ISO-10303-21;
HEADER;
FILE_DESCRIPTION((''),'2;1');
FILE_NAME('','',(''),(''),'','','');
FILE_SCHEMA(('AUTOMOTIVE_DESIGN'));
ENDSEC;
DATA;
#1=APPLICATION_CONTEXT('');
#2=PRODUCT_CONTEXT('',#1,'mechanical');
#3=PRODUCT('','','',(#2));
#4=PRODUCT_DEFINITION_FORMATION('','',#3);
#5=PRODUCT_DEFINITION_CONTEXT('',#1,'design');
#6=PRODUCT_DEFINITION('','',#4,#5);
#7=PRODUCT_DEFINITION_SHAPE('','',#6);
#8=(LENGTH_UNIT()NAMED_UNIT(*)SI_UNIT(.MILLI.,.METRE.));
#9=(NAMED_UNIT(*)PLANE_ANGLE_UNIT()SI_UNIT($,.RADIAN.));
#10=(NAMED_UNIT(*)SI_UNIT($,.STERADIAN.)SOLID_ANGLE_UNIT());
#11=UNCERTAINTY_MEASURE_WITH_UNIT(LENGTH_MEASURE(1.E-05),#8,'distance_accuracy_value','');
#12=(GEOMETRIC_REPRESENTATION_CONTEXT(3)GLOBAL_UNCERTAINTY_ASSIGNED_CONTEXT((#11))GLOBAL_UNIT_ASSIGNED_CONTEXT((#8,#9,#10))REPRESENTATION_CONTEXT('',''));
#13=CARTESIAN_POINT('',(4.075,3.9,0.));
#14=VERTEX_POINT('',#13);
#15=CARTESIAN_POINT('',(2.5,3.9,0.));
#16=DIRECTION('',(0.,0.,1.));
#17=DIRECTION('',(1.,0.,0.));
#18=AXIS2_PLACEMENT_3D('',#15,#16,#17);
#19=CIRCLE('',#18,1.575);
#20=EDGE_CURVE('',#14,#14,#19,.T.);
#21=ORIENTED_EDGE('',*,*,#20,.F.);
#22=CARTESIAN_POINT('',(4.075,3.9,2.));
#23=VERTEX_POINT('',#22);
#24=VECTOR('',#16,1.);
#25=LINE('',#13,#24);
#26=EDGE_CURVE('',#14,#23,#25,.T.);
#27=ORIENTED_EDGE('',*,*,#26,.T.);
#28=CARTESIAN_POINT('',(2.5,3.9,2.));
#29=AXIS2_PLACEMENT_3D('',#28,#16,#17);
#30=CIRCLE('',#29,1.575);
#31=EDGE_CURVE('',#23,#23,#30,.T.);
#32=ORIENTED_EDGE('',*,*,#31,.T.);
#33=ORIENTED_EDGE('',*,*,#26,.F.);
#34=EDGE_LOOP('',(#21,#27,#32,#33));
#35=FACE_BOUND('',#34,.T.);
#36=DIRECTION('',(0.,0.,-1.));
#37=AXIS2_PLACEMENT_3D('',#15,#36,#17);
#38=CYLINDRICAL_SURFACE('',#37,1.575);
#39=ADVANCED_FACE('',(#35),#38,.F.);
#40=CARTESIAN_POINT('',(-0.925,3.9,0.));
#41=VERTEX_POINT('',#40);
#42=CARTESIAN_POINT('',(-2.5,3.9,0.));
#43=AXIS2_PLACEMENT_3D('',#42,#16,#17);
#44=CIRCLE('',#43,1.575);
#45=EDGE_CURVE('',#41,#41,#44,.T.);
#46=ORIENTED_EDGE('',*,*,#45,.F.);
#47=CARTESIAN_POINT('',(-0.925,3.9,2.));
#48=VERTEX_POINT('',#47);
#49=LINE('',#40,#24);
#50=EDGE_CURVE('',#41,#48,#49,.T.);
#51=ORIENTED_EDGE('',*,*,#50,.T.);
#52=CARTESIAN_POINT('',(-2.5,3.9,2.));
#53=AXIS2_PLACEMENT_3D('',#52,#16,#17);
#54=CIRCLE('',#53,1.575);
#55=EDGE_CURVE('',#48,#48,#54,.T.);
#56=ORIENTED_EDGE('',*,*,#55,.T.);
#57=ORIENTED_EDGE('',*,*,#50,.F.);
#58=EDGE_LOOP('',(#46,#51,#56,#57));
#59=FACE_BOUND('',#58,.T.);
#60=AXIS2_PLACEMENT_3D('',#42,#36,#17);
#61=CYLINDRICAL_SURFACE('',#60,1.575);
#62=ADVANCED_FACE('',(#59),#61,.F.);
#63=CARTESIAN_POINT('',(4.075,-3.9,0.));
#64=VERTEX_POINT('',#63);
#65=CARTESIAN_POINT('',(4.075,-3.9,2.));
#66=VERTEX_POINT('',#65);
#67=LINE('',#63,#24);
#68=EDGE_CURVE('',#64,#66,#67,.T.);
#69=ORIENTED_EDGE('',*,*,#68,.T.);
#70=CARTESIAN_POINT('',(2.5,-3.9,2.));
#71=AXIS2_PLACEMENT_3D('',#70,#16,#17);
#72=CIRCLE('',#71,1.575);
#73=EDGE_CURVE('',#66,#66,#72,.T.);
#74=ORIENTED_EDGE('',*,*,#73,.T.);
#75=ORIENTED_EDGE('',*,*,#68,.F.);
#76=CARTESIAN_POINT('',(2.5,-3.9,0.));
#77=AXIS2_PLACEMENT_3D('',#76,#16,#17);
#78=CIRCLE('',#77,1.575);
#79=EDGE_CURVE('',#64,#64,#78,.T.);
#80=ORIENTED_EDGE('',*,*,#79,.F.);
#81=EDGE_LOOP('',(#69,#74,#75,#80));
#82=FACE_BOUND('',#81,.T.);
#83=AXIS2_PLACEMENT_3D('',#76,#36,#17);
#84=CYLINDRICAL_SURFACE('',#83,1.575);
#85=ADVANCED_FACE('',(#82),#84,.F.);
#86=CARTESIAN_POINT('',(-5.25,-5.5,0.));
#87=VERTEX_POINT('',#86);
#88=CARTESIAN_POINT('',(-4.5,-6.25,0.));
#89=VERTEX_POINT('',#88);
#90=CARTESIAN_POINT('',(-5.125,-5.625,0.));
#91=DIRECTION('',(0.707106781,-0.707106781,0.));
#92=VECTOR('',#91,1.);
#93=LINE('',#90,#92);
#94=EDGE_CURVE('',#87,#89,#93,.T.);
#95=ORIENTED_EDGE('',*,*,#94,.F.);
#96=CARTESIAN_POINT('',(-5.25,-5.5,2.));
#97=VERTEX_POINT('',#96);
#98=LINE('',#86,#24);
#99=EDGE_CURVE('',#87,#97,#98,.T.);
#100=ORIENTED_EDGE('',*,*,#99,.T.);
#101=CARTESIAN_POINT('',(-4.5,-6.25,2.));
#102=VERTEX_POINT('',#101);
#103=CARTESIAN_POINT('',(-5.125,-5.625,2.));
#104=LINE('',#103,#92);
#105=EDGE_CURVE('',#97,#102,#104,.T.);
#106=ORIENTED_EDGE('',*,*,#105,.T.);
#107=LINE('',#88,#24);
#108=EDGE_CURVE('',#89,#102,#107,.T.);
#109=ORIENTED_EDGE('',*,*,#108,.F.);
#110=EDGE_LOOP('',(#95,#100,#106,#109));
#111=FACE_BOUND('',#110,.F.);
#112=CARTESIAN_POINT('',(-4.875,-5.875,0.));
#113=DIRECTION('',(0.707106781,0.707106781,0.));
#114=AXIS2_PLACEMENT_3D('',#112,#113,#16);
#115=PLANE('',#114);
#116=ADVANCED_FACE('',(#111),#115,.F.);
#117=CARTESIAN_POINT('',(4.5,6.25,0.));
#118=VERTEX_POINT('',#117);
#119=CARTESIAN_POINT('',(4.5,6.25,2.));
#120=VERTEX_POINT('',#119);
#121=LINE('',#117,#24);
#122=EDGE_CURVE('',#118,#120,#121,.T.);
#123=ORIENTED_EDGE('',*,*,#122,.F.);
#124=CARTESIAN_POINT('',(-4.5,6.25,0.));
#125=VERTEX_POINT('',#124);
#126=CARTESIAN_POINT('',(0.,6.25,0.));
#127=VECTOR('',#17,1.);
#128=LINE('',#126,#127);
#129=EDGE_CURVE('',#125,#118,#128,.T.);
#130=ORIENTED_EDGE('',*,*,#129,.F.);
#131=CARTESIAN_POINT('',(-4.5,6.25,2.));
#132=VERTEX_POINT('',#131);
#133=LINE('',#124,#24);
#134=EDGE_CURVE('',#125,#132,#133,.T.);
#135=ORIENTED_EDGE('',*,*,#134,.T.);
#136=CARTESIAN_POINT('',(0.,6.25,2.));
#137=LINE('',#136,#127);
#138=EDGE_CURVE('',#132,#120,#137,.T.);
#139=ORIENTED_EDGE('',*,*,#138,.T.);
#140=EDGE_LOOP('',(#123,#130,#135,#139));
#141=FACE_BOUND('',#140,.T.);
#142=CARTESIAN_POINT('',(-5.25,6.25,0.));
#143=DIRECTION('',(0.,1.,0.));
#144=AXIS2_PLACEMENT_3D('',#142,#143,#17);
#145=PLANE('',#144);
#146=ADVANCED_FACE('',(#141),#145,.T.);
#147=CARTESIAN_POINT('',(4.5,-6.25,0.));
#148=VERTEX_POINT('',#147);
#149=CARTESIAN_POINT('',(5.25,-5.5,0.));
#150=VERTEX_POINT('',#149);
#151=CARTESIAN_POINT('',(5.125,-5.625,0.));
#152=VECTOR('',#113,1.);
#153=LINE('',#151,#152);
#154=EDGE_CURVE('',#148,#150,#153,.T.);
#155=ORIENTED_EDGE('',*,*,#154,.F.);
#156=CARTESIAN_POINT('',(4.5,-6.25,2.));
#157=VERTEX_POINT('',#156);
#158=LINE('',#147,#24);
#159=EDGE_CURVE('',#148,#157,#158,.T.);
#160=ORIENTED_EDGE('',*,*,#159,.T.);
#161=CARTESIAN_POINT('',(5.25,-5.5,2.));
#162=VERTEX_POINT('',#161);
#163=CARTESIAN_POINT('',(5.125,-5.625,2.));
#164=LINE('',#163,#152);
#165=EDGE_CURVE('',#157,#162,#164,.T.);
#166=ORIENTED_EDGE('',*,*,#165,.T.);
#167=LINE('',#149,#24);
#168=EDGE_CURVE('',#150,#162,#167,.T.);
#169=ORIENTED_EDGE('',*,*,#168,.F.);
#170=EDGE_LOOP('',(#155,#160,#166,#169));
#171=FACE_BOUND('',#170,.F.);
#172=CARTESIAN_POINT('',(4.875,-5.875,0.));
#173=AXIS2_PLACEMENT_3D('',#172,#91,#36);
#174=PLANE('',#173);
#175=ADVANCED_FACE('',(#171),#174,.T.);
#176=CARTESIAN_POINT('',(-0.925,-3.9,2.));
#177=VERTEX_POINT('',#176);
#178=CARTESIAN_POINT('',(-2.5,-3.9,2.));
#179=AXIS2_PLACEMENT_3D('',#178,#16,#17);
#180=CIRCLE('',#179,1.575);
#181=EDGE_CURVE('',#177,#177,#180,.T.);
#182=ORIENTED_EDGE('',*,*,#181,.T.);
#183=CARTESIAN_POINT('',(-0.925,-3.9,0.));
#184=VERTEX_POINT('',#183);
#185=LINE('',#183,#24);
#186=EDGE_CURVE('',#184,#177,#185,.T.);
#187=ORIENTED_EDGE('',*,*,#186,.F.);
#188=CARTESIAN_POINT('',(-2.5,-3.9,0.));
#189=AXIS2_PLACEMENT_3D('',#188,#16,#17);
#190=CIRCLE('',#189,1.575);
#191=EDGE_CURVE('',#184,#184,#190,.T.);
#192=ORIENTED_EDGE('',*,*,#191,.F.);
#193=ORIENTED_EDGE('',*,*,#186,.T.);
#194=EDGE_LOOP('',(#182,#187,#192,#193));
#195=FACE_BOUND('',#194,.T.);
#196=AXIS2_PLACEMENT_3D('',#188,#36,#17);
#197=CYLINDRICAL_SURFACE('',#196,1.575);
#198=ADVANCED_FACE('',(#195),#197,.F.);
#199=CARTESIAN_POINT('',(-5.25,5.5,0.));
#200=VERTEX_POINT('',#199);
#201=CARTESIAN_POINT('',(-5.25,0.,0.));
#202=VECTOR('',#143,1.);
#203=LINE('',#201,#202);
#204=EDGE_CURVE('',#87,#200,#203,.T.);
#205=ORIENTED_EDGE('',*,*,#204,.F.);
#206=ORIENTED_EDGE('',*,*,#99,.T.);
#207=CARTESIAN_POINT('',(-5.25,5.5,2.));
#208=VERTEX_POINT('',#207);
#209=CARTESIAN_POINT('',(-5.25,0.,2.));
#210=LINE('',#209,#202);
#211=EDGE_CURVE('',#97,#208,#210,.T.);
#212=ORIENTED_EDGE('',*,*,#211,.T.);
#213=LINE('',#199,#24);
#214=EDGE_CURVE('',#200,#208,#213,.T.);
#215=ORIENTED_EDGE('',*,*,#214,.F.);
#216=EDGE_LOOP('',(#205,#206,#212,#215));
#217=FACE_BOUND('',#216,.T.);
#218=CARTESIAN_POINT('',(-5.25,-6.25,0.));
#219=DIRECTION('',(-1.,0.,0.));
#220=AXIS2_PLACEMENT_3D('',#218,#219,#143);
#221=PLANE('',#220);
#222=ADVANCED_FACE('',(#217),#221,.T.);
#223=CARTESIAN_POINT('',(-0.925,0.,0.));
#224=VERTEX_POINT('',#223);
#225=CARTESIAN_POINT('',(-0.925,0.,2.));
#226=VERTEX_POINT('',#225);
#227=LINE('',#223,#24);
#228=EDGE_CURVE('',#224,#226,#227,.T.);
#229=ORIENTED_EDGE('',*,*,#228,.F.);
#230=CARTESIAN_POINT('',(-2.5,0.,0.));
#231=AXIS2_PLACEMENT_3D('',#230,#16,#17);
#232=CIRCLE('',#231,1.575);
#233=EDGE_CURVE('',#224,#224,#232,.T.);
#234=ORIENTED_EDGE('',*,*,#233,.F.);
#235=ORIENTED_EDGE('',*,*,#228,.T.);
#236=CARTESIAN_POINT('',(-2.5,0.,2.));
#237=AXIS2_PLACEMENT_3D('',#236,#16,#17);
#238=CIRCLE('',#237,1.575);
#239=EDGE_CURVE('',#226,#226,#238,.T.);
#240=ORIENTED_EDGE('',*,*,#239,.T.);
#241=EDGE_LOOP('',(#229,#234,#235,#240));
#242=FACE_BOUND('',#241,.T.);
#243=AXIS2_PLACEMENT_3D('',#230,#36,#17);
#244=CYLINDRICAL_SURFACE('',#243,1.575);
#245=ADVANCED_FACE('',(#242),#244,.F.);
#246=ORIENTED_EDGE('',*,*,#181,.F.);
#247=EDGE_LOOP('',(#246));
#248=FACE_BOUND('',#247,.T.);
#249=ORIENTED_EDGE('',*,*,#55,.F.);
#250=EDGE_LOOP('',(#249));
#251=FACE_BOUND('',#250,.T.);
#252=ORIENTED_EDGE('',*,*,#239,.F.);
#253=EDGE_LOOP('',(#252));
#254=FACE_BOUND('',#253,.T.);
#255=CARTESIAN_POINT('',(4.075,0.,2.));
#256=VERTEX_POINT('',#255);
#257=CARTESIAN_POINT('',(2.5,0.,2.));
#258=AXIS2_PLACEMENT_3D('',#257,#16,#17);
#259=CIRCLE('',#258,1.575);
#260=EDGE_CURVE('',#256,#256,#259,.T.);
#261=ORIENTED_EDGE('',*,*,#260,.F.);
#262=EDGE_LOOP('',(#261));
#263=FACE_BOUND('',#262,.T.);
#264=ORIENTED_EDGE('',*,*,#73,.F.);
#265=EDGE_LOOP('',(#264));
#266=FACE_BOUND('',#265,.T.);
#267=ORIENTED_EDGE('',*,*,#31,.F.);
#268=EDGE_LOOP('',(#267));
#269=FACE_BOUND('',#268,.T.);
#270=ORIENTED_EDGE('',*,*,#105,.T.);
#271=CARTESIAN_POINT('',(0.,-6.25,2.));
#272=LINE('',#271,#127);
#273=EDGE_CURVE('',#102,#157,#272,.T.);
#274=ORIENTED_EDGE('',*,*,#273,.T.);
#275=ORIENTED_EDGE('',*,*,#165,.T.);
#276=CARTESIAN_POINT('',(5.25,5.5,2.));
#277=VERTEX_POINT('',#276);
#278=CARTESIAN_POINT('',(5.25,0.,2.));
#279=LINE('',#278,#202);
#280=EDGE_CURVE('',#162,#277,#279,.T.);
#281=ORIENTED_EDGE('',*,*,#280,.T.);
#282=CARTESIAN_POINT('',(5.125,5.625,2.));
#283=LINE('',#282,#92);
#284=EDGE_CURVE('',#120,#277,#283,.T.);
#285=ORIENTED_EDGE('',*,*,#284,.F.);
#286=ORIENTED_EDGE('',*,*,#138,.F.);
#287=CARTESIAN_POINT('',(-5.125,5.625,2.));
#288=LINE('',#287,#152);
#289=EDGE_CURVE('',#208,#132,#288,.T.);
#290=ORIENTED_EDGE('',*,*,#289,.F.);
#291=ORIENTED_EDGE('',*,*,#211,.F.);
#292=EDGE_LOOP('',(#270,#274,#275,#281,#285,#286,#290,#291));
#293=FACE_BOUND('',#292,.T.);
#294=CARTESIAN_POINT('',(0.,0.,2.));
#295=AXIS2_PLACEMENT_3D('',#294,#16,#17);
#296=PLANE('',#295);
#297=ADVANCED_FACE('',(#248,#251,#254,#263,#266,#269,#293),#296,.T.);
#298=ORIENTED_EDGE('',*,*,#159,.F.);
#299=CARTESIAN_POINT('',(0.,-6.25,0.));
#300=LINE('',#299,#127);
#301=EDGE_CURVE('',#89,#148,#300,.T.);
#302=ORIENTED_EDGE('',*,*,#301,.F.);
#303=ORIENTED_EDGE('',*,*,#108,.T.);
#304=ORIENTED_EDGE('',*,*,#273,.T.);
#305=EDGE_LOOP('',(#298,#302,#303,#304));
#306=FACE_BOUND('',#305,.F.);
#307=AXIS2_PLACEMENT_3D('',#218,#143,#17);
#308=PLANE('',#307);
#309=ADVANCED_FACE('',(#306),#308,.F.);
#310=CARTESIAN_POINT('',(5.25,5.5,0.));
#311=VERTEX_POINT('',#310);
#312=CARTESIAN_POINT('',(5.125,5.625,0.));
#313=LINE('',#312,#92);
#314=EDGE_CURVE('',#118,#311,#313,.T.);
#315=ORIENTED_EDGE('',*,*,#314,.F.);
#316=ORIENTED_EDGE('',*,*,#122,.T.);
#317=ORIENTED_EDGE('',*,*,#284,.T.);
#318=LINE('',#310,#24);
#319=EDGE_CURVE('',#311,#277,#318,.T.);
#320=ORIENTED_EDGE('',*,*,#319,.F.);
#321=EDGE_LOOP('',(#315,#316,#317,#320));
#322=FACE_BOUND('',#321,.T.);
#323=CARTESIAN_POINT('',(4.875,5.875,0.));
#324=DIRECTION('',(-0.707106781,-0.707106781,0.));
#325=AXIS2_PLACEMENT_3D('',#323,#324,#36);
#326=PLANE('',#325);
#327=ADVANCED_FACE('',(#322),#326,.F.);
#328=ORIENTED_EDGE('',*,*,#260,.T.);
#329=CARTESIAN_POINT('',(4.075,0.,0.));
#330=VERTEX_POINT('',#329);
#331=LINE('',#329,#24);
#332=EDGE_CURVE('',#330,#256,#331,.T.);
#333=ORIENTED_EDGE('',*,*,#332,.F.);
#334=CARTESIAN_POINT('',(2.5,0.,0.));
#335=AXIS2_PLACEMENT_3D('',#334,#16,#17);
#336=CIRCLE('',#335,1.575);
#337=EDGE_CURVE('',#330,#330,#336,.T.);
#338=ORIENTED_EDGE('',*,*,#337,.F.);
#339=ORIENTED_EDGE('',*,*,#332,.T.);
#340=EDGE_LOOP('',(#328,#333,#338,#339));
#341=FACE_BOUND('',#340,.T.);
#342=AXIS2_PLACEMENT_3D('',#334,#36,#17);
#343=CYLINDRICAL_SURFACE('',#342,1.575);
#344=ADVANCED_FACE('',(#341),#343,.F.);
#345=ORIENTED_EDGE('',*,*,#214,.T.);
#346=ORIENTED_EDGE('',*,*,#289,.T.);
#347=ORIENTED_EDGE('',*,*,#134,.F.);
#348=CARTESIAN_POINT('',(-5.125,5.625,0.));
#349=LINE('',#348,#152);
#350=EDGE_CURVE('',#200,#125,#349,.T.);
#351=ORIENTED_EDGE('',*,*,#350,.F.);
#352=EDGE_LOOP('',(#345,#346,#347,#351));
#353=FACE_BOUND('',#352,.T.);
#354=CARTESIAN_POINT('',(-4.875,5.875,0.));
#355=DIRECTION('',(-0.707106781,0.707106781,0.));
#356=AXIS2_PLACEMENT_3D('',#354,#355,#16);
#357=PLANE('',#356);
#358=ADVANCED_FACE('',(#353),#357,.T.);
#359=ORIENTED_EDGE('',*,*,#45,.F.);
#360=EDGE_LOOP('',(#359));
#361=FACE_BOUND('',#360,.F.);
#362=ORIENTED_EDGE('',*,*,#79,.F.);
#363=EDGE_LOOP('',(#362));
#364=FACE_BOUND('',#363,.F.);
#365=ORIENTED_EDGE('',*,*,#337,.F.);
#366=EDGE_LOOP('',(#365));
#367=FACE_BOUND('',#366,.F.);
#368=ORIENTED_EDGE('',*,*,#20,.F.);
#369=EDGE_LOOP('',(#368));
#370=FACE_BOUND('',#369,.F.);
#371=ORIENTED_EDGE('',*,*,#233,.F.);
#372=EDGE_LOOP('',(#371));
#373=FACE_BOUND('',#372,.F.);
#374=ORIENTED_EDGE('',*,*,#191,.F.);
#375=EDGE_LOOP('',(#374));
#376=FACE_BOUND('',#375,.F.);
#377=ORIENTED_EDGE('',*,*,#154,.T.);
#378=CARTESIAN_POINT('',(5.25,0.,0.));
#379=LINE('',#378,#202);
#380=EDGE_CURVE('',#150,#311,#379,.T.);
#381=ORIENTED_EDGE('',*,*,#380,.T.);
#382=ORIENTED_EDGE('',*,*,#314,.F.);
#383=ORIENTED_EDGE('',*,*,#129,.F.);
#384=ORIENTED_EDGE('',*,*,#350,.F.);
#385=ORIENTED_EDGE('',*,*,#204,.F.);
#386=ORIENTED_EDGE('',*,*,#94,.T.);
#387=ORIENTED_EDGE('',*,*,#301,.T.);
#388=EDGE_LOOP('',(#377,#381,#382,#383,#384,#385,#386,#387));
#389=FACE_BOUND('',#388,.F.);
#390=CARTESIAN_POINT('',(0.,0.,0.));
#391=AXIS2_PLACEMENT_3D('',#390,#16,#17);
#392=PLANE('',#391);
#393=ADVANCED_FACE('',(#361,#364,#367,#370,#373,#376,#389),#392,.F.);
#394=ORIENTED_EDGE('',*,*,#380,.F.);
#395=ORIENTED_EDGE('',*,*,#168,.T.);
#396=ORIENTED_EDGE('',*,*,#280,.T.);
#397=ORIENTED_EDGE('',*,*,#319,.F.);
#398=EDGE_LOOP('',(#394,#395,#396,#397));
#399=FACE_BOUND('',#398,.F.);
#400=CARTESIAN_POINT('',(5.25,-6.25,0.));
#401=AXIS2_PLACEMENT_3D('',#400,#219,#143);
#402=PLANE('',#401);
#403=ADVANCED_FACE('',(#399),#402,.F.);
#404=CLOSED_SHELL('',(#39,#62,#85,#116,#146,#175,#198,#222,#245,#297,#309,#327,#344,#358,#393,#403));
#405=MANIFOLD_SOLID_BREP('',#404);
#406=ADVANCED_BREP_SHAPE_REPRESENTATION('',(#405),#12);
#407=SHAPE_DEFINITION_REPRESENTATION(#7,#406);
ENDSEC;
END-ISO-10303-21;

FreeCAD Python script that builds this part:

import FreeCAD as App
import Part
import Sketcher
from FreeCAD import Vector


def edges_at(feature, points):
    """Names of the edges that pass closest to the given points."""
    edges = feature.Shape.Edges
    near = lambda p: min(range(len(edges)), key=lambda i: edges[i].distToShape(Part.Vertex(*p))[0])
    return sorted({f"Edge{near(p) + 1}" for p in points})


def add_polygon(sketch, points):
    """Adds a closed chain of lines whose ends are joined by coincident constraints."""
    first, n = sketch.GeometryCount, len(points)
    for a, b in zip(points, points[1:] + points[:1]):
        sketch.addGeometry(Part.LineSegment(App.Vector(*a, 0), App.Vector(*b, 0)), False)
    for i in range(n):
        sketch.addConstraint(Sketcher.Constraint("Coincident", first + i, 2, first + (i + 1) % n, 1))

doc = App.newDocument("Part")
body = doc.addObject("PartDesign::Body", "Body")

sketch1 = doc.addObject("Sketcher::SketchObject", "Sketch")
body.addObject(sketch1)
sketch1.AttachmentSupport = (doc.XY_Plane, [""])
sketch1.MapMode = "FlatFace"
add_polygon(sketch1, [(-5.2, 6.2), (-5.2, -6.2), (5.2, -6.2), (5.2, 6.2)])
sketch1.addGeometry(Part.Circle(Vector(-2.5, -3.9, 0), Vector(0, 0, 1), 1.6), False)
sketch1.addGeometry(Part.Circle(Vector(2.5, -3.9, 0), Vector(0, 0, 1), 1.6), False)
sketch1.addGeometry(Part.Circle(Vector(-2.5, 0, 0), Vector(0, 0, 1), 1.6), False)
sketch1.addGeometry(Part.Circle(Vector(-2.5, 3.9, 0), Vector(0, 0, 1), 1.6), False)
sketch1.addGeometry(Part.Circle(Vector(2.5, 0, 0), Vector(0, 0, 1), 1.6), False)
sketch1.addGeometry(Part.Circle(Vector(2.5, 3.9, 0), Vector(0, 0, 1), 1.6), False)
sketch1.addConstraint(Sketcher.Constraint("Vertical", 0))
sketch1.addConstraint(Sketcher.Constraint("Horizontal", 1))
sketch1.addConstraint(Sketcher.Constraint("Vertical", 2))
sketch1.addConstraint(Sketcher.Constraint("Horizontal", 3))
sketch1.addConstraint(Sketcher.Constraint("Equal", 4, 5))
sketch1.addConstraint(Sketcher.Constraint("Equal", 5, 6))
sketch1.addConstraint(Sketcher.Constraint("Equal", 6, 7))
sketch1.addConstraint(Sketcher.Constraint("Equal", 7, 8))
sketch1.addConstraint(Sketcher.Constraint("Equal", 8, 9))
sketch1.addConstraint(Sketcher.Constraint("Symmetric", 5, 3, 7, 3, -1, 1))
sketch1.addConstraint(Sketcher.Constraint("Symmetric", 6, 3, 8, 3, -1, 1))
sketch1.addConstraint(Sketcher.Constraint("Symmetric", 4, 3, 9, 3, -1, 1))
sketch1.addConstraint(Sketcher.Constraint("Symmetric", 0, 2, 2, 2, -1, 1))
sketch1.addConstraint(Sketcher.Constraint("Symmetric", 4, 3, 5, 3, -2))
sketch1.addConstraint(Sketcher.Constraint("PointOnObject", 6, 3, -1))
sketch1.addConstraint(Sketcher.Constraint("Vertical", 4, 3, 6, 3))
sketch1.addConstraint(Sketcher.Constraint("Diameter", 4, 3.15))
sketch1.addConstraint(Sketcher.Constraint("DistanceX", 1, 1, 1, 2, 10.5))
sketch1.addConstraint(Sketcher.Constraint("DistanceY", 0, 2, 0, 1, 12.5))
sketch1.addConstraint(Sketcher.Constraint("DistanceX", 4, 3, 5, 3, 5.0))
sketch1.addConstraint(Sketcher.Constraint("DistanceY", 4, 3, -1, 1, 3.9))
pad1 = doc.addObject("PartDesign::Pad", "Pad")
body.addObject(pad1)
pad1.Profile = sketch1
pad1.Length = 2
doc.recompute()

chamfer = doc.addObject("PartDesign::Chamfer", "Chamfer")
body.addObject(chamfer)
chamfer.Base = (pad1, edges_at(pad1, [
    (-5.25, 6.25, 1),
    (5.25, 6.25, 1),
    (5.25, -6.25, 1),
    (-5.25, -6.25, 1),
]))
chamfer.Size = 0.75

doc.recompute()
